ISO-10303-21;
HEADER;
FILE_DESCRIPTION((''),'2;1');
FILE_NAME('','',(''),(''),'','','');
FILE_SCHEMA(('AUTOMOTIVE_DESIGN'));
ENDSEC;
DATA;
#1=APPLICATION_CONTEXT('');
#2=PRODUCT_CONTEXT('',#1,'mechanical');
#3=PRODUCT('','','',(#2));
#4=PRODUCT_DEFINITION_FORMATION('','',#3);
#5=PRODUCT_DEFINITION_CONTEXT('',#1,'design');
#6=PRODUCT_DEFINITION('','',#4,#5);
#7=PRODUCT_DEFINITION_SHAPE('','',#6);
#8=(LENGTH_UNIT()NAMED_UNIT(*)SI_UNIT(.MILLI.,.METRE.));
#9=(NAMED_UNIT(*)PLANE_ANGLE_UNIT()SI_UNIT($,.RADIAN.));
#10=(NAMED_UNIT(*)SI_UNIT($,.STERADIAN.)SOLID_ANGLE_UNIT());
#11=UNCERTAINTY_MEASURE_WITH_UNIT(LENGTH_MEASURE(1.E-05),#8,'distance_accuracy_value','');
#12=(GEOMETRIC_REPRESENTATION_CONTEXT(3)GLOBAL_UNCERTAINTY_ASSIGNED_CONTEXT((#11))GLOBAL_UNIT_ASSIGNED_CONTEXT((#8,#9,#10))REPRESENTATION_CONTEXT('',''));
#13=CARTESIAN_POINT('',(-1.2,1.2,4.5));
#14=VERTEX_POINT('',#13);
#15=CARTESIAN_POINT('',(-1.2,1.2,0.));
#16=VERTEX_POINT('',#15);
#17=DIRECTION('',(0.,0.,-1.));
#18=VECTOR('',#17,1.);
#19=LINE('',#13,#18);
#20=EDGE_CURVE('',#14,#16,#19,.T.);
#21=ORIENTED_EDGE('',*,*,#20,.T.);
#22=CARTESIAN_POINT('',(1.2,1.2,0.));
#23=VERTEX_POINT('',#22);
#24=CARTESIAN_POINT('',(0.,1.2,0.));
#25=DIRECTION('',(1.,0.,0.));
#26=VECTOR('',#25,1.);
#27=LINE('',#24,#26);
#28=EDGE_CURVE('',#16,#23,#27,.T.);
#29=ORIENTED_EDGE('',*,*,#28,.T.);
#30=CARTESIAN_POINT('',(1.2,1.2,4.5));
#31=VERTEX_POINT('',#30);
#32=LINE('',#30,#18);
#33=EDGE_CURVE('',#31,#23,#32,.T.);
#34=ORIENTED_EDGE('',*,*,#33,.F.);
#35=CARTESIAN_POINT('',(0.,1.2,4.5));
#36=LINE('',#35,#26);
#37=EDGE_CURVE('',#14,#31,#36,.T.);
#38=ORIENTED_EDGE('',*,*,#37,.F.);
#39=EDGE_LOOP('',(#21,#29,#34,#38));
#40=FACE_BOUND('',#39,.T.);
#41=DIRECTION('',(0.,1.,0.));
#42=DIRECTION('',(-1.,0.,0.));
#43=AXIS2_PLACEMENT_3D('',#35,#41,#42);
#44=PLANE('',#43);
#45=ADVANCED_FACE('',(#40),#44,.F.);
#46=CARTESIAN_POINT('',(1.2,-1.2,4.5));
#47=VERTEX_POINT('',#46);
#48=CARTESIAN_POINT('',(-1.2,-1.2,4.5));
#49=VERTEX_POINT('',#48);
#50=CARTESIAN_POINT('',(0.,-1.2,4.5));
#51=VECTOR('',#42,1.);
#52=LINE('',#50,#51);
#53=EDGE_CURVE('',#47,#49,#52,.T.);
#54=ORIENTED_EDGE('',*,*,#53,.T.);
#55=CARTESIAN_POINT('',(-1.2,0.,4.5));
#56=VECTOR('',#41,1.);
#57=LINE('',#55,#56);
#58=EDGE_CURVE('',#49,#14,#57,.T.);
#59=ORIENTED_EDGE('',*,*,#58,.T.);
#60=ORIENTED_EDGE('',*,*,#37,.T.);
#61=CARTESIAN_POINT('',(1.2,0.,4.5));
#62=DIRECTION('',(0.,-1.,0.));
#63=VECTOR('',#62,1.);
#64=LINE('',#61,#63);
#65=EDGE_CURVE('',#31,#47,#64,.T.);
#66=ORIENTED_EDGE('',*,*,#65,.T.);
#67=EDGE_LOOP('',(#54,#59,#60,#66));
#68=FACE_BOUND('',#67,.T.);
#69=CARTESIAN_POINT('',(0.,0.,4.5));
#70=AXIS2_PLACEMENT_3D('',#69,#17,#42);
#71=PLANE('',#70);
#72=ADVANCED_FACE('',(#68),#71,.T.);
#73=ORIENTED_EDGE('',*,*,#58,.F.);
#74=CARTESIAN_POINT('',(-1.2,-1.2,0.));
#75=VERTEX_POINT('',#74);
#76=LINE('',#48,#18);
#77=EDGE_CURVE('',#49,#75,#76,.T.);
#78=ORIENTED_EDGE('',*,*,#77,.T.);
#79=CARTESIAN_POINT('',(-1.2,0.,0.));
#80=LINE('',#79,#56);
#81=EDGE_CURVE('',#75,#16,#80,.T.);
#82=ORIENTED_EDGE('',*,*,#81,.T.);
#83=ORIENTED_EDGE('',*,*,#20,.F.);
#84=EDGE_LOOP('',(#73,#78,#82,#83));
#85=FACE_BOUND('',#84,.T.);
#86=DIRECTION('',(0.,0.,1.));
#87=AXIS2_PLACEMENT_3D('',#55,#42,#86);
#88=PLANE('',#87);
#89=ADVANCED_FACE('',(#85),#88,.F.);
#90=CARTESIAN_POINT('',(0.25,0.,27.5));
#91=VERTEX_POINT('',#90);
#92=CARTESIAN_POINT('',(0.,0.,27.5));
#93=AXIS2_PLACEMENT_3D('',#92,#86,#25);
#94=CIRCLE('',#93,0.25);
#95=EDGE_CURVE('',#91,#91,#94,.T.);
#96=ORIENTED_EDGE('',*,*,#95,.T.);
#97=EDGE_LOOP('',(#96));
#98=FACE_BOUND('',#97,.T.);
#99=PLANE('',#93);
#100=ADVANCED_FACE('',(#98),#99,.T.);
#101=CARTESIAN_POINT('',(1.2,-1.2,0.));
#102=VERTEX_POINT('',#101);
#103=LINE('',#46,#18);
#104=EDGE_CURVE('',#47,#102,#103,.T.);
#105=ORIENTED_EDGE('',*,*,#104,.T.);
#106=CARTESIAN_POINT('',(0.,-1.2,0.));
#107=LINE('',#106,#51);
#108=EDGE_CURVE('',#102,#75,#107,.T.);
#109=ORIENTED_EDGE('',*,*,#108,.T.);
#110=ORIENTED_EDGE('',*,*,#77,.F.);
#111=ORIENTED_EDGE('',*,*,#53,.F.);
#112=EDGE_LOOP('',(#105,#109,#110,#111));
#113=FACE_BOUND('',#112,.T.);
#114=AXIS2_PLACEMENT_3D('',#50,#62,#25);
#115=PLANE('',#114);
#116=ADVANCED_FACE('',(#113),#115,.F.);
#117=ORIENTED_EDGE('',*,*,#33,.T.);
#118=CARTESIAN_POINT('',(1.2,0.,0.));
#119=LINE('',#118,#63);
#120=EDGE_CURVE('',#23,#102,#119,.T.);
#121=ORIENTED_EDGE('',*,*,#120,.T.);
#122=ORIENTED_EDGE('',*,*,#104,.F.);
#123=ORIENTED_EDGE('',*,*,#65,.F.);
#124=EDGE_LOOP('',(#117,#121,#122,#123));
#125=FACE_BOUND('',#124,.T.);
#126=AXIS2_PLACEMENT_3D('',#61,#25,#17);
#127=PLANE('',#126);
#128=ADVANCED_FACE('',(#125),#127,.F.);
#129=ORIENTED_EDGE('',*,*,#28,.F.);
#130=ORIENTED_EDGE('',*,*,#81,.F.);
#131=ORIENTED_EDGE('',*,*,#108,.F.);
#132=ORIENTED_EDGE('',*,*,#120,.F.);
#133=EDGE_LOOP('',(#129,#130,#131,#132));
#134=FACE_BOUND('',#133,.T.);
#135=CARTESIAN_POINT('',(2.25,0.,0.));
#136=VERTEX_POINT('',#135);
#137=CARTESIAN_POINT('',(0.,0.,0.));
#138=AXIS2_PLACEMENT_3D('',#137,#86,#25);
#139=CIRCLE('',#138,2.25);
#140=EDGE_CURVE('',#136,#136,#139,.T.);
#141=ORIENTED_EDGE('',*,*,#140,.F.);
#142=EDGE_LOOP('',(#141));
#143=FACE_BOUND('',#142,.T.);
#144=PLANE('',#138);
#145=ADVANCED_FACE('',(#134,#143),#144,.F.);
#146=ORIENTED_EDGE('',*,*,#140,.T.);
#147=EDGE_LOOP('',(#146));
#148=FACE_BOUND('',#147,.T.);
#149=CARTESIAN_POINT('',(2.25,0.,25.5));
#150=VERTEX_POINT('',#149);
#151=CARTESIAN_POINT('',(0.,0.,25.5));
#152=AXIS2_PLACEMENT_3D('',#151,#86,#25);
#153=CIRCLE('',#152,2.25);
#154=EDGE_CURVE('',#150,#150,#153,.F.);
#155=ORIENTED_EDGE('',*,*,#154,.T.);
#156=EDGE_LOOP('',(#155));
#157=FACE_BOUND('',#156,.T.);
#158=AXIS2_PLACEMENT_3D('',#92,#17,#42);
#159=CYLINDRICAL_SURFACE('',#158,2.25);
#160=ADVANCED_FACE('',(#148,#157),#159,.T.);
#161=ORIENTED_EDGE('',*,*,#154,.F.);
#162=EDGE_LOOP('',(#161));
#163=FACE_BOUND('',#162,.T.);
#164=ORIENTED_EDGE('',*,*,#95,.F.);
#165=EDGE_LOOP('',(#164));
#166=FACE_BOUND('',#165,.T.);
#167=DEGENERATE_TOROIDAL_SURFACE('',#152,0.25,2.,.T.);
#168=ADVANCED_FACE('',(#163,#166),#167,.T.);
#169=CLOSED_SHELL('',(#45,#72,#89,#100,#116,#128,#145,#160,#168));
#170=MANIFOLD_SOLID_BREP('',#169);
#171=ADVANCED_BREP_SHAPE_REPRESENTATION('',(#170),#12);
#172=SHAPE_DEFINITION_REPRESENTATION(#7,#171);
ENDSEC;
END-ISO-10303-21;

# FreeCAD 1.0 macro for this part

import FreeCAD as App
import Part
import Sketcher

V = App.Vector


def edges_at(feature, points):
    """Names of the edges that pass closest to the given points."""
    edges = feature.Shape.Edges
    near = lambda p: min(range(len(edges)), key=lambda i: edges[i].distToShape(Part.Vertex(*p))[0])
    return sorted({f"Edge{near(p) + 1}" for p in points})

doc = App.newDocument("Part")
params = doc.addObject("Spreadsheet::Sheet", "Params")
for row, (alias, value) in enumerate([
    ("sketch1_diameter", "4.5 mm"),
    ("pad1_length", "27.5 mm"),
    ("sketch2_width", "2.4 mm"),
    ("pocket1_length", "4.5 mm"),
    ("fillet_radius", "2 mm"),
], start=1):
    params.set(f"A{row}", alias)
    params.set(f"B{row}", "=" + value)
    params.setAlias(f"B{row}", alias)

body = doc.addObject("PartDesign::Body", "Body")

# Sketch on XY plane
sketch1 = body.newObject("Sketcher::SketchObject", "Sketch")
sketch1.AttachmentSupport = (doc.getObject("XY_Plane"), [""])
sketch1.MapMode = "FlatFace"
sketch1.addGeometry(Part.Circle(V(0, 0, 0), V(0, 0, 1), 2.25), False)
sketch1.addConstraint(Sketcher.Constraint("Coincident", 0, 3, -1, 1))
sketch1.addConstraint(Sketcher.Constraint("Diameter", 0, 4.5))
sketch1.setExpression("Constraints[1]", "Params.sketch1_diameter")
pad1 = body.newObject("PartDesign::Pad", "Pad")
pad1.Profile = sketch1
pad1.setExpression("Length", "Params.pad1_length")

# Sketch on XY plane
sketch2 = body.newObject("Sketcher::SketchObject", "Sketch001")
sketch2.AttachmentSupport = (doc.getObject("XY_Plane"), [""])
sketch2.MapMode = "FlatFace"
sketch2.addGeometry(Part.LineSegment(V(-1.2, 1.2, 0), V(-1.2, -1.2, 0)), False)
sketch2.addGeometry(Part.LineSegment(V(-1.2, -1.2, 0), V(1.2, -1.2, 0)), False)
sketch2.addGeometry(Part.LineSegment(V(1.2, -1.2, 0), V(1.2, 1.2, 0)), False)
sketch2.addGeometry(Part.LineSegment(V(1.2, 1.2, 0), V(-1.2, 1.2, 0)), False)
sketch2.addConstraint(Sketcher.Constraint("Coincident", 0, 2, 1, 1))
sketch2.addConstraint(Sketcher.Constraint("Coincident", 1, 2, 2, 1))
sketch2.addConstraint(Sketcher.Constraint("Coincident", 2, 2, 3, 1))
sketch2.addConstraint(Sketcher.Constraint("Coincident", 3, 2, 0, 1))
sketch2.addConstraint(Sketcher.Constraint("Vertical", 0))
sketch2.addConstraint(Sketcher.Constraint("Horizontal", 1))
sketch2.addConstraint(Sketcher.Constraint("Vertical", 2))
sketch2.addConstraint(Sketcher.Constraint("Horizontal", 3))
sketch2.addConstraint(Sketcher.Constraint("Symmetric", 0, 2, 2, 2, -1, 1))
sketch2.addConstraint(Sketcher.Constraint("Equal", 3, 0))
sketch2.addConstraint(Sketcher.Constraint("DistanceX", 1, 1, 1, 2, 2.4))
sketch2.setExpression("Constraints[10]", "Params.sketch2_width")
pocket1 = body.newObject("PartDesign::Pocket", "Pocket")
pocket1.Profile = sketch2
pocket1.setExpression("Length", "Params.pocket1_length")
pocket1.Reversed = True
doc.recompute()

fillet = body.newObject("PartDesign::Fillet", "Fillet")
fillet.Base = (pocket1, edges_at(pocket1, [(-2.25, 0, 27.5)]))
fillet.setExpression("Radius", "Params.fillet_radius")

doc.recompute()
